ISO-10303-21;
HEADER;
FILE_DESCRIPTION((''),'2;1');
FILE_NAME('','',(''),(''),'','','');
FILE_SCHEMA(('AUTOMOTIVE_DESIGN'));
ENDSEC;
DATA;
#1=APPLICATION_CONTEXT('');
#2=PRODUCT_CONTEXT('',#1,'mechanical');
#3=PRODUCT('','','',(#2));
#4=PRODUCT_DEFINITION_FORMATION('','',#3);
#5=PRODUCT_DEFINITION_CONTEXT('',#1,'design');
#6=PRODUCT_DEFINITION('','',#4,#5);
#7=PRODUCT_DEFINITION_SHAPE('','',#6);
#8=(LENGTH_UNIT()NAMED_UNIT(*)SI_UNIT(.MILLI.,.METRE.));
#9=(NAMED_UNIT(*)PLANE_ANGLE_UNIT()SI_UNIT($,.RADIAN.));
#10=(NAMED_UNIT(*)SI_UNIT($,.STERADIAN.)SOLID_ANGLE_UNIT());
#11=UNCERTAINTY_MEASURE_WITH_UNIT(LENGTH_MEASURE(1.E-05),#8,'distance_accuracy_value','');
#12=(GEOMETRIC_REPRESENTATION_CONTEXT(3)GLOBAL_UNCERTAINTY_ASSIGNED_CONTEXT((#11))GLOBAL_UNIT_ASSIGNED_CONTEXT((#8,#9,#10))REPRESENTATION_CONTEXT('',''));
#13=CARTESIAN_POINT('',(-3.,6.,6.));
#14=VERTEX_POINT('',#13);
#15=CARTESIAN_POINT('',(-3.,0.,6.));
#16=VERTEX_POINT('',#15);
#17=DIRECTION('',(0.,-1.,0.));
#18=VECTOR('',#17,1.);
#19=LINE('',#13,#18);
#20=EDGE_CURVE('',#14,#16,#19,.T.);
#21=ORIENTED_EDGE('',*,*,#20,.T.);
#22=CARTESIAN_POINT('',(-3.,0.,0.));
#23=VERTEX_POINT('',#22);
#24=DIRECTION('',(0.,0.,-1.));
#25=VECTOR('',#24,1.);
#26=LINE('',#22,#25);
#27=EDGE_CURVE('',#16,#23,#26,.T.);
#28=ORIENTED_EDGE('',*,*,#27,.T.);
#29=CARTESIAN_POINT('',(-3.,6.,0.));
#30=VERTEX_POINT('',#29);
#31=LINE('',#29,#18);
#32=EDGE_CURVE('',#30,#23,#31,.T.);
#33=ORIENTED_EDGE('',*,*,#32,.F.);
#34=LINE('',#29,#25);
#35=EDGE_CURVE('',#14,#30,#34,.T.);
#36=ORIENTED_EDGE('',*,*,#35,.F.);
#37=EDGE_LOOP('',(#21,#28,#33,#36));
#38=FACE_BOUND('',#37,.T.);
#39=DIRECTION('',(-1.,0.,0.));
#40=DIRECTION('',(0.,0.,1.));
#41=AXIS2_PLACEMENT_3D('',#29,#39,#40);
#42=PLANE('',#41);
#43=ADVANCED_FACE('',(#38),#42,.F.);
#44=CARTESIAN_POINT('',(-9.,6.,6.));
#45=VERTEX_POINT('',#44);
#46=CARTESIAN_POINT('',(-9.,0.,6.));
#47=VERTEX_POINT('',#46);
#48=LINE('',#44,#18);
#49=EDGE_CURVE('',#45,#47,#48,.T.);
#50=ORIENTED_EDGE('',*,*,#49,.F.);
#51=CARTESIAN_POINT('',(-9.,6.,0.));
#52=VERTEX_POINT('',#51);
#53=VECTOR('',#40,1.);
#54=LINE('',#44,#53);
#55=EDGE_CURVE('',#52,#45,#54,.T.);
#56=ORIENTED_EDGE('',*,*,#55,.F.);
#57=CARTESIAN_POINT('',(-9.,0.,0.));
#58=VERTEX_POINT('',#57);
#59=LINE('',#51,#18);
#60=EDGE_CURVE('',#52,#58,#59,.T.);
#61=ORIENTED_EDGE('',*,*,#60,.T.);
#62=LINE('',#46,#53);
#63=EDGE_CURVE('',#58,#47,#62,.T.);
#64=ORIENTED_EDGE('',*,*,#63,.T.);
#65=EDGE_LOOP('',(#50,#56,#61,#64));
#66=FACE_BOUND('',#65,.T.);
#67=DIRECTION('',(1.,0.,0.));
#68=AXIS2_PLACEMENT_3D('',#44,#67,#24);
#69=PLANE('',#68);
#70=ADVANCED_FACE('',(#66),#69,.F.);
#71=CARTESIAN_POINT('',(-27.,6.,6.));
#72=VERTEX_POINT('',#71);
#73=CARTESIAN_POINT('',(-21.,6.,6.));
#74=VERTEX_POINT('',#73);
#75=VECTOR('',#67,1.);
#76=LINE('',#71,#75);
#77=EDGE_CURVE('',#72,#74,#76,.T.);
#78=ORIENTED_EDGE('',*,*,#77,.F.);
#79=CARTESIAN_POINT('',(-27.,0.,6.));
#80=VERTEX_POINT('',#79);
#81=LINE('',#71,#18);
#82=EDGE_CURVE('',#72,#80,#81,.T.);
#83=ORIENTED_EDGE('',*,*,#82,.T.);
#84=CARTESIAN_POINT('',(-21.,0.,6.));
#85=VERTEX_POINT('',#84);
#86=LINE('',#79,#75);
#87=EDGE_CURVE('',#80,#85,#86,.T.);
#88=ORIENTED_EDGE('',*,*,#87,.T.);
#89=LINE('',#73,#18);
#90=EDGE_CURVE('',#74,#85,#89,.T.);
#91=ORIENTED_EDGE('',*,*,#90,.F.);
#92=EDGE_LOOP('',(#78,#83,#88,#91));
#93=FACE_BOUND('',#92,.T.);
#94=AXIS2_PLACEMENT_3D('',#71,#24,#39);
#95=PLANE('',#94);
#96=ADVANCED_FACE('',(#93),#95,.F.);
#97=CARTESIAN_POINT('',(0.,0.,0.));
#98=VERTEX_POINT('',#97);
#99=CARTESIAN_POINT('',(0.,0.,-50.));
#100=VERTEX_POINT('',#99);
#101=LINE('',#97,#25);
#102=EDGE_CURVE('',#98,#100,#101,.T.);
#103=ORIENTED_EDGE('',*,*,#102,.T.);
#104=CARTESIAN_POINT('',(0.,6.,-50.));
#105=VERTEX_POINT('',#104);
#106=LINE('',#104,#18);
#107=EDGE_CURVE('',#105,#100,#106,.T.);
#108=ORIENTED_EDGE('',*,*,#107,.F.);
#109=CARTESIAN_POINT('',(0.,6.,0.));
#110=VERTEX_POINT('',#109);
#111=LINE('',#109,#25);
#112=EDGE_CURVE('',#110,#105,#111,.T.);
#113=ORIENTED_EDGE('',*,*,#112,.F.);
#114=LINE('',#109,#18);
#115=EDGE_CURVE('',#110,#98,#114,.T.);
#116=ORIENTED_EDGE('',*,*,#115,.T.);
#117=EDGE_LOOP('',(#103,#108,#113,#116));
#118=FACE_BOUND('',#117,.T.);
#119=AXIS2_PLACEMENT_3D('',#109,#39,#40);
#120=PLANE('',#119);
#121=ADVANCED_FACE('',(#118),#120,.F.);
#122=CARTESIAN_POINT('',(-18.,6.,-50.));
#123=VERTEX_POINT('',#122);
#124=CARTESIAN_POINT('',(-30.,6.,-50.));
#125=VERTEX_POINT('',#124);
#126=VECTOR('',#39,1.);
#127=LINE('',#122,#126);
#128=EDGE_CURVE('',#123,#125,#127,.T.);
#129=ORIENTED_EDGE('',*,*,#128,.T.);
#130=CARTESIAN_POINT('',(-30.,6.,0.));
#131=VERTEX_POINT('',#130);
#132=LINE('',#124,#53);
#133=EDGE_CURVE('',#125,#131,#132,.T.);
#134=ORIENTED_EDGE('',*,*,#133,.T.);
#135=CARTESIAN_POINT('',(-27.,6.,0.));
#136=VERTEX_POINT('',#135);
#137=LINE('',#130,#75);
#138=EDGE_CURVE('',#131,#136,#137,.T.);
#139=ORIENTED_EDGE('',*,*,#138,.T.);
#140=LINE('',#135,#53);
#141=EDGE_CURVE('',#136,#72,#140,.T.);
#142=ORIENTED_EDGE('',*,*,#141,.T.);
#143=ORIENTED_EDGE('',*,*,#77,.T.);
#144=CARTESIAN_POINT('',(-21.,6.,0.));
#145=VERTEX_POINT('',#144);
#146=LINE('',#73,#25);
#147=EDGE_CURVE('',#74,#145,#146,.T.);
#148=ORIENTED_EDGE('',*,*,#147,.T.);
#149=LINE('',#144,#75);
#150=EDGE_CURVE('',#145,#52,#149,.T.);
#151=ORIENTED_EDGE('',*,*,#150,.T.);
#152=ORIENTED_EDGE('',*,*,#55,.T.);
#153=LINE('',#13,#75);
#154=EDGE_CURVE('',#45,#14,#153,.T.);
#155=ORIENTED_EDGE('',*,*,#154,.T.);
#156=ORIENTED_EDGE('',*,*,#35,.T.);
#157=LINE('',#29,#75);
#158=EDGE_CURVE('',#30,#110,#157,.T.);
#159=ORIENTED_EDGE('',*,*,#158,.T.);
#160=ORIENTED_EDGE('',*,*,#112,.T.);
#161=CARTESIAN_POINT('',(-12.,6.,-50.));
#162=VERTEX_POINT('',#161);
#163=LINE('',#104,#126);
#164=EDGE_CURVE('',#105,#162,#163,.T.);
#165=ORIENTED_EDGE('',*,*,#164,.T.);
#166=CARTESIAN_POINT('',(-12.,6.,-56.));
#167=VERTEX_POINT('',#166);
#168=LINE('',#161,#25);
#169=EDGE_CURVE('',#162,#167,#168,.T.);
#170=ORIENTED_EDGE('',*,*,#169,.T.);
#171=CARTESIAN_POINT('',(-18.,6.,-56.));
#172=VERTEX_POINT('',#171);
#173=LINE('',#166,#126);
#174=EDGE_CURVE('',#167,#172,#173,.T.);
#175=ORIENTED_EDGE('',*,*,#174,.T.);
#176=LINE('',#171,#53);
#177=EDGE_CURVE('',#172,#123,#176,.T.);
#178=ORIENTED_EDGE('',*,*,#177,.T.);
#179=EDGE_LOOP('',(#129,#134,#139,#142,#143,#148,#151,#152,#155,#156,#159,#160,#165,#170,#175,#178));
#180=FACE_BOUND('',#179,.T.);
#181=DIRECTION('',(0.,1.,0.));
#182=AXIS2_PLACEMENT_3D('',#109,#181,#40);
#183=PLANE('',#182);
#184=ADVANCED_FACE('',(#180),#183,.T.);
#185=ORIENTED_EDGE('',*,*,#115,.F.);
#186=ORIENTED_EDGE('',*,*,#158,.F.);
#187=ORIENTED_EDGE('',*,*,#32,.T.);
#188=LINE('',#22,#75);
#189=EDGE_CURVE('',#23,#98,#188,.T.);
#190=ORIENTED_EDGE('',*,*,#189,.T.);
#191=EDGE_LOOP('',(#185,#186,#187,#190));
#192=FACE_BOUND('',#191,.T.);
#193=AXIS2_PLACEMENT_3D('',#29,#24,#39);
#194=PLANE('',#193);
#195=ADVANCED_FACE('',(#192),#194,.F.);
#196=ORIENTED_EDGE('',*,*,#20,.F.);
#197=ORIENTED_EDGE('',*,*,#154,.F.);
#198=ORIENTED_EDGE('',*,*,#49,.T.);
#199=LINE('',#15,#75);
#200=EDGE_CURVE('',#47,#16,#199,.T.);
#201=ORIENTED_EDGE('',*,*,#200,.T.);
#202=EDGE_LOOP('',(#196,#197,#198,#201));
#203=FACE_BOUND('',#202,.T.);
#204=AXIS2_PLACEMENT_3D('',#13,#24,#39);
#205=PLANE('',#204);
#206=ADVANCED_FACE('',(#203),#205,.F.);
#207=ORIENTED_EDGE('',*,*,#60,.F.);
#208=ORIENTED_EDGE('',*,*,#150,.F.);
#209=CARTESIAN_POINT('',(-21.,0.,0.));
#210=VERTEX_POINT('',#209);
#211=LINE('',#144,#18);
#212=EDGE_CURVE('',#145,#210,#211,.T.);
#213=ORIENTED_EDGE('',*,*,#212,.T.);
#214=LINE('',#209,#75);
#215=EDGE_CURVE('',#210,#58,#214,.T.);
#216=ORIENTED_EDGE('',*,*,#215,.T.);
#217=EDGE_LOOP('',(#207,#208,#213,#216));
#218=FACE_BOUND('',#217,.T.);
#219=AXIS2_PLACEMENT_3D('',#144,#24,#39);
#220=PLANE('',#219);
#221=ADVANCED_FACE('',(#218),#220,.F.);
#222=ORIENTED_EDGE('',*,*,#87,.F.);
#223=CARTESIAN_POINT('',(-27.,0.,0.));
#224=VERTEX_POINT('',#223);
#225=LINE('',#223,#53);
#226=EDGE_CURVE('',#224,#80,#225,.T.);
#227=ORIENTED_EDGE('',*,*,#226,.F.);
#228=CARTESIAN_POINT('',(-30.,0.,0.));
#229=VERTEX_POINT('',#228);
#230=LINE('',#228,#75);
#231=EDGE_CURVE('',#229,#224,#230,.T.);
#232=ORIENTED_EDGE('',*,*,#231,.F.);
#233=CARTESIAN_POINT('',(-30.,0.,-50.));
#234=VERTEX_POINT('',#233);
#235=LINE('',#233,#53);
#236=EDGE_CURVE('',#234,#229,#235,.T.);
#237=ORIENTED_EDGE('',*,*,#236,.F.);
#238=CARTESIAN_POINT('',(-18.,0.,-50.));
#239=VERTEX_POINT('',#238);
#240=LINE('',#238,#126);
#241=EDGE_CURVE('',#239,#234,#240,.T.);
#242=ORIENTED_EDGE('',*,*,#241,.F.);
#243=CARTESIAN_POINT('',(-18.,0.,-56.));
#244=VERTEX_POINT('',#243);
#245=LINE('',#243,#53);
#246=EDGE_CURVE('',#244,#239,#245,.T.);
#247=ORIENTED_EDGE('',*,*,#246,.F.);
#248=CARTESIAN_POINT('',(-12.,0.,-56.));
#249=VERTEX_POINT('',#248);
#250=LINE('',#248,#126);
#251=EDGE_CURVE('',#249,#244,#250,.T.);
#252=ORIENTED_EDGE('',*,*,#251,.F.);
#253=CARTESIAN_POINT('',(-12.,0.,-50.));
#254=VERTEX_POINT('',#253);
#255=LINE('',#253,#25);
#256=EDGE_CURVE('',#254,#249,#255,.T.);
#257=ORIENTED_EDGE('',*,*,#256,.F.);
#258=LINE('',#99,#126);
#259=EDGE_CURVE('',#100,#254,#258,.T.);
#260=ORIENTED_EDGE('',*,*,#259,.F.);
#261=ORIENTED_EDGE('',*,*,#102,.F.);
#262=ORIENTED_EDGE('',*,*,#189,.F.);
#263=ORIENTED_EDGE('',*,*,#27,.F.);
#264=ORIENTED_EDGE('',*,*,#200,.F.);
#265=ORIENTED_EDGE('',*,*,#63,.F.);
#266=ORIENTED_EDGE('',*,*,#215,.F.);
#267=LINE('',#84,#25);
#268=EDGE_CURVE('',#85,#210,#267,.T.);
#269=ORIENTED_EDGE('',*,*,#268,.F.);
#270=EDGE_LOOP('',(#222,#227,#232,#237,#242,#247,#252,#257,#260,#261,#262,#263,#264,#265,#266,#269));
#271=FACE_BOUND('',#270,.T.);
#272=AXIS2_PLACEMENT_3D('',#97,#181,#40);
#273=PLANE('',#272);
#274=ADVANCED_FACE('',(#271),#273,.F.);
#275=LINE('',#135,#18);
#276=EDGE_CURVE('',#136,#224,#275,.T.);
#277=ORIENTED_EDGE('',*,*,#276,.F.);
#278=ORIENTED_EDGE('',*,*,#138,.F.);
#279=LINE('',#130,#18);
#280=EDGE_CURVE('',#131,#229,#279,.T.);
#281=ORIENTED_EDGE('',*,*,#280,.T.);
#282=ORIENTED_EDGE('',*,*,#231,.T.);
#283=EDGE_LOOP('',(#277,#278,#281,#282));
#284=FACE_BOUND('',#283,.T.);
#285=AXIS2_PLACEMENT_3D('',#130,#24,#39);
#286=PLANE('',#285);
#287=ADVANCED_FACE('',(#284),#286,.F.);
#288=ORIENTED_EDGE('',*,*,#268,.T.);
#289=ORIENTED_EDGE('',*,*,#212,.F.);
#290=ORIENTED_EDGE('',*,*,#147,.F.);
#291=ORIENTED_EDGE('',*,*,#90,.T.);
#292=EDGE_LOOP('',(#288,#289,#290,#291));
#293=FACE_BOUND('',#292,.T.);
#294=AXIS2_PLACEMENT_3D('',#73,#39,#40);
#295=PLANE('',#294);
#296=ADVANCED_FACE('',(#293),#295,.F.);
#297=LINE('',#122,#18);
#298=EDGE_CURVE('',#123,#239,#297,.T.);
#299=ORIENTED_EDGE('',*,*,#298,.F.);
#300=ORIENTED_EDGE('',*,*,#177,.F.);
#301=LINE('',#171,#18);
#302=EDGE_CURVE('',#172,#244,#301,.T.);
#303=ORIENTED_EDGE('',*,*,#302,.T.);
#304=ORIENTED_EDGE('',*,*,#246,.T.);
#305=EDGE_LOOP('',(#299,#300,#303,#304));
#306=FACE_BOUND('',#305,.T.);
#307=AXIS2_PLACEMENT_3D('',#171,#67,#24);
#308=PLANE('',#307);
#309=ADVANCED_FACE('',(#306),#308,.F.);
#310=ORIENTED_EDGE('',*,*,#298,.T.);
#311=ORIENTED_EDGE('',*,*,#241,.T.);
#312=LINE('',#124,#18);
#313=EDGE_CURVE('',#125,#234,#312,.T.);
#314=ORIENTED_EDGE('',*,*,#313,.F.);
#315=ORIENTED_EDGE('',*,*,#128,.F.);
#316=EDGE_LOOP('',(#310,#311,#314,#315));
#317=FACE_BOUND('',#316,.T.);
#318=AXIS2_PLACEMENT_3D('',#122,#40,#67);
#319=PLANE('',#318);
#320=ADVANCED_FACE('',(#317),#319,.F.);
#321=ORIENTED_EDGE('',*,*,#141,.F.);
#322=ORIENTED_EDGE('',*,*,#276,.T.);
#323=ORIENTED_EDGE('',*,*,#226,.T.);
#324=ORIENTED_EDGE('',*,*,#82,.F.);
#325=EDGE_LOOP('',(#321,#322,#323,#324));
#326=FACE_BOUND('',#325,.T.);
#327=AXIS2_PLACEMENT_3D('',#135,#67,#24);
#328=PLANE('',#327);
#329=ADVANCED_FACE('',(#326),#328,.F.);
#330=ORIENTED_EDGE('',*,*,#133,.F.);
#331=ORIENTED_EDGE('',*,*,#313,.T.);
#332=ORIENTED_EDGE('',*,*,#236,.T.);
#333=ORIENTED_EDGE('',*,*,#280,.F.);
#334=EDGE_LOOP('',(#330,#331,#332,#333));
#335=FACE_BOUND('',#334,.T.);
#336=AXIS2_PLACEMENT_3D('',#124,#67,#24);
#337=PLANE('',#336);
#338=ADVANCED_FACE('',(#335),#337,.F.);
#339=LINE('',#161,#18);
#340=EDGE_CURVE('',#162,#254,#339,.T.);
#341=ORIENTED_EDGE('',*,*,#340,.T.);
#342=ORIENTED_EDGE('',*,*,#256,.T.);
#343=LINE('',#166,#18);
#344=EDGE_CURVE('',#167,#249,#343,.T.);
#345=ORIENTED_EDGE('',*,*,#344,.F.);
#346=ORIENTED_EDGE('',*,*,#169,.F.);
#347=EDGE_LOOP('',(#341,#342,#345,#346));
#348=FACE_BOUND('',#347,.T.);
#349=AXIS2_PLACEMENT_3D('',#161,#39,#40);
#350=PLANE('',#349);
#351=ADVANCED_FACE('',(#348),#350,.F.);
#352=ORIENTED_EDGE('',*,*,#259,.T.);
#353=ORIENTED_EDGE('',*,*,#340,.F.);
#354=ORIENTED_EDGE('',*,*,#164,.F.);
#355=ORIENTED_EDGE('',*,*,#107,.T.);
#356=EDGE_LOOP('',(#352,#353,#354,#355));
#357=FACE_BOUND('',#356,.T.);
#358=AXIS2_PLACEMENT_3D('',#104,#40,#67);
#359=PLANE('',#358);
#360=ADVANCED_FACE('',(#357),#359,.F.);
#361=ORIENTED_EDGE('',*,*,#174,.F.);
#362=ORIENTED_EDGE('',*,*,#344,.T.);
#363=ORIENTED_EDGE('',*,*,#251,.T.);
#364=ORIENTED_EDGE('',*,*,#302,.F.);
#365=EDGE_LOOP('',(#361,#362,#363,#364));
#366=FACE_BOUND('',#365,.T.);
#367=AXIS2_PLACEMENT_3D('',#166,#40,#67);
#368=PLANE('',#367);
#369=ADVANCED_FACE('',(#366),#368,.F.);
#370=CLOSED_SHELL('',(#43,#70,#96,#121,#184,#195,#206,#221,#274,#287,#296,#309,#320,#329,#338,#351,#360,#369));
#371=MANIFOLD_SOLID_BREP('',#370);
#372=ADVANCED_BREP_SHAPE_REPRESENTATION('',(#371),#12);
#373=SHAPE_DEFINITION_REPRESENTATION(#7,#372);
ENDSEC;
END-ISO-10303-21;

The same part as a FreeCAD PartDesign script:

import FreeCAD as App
import Part
import Sketcher


def add_polygon(sketch, points):
    """Adds a closed chain of lines whose ends are joined by coincident constraints."""
    first, n = sketch.GeometryCount, len(points)
    for a, b in zip(points, points[1:] + points[:1]):
        sketch.addGeometry(Part.LineSegment(App.Vector(*a, 0), App.Vector(*b, 0)), False)
    for i in range(n):
        sketch.addConstraint(Sketcher.Constraint("Coincident", first + i, 2, first + (i + 1) % n, 1))

doc = App.newDocument("Part")
params = doc.addObject("Spreadsheet::Sheet", "Params")
for row, (alias, value) in enumerate([
    ("sketch1_width", "12 mm"),
    ("sketch1_width2", "6 mm"),
    ("sketch1_height", "50 mm"),
    ("pad1_length", "6 mm"),
], start=1):
    params.set(f"A{row}", alias)
    params.set(f"B{row}", "=" + value)
    params.setAlias(f"B{row}", alias)

body = doc.addObject("PartDesign::Body", "Body")

# Sketch on XZ plane
sketch1 = body.newObject("Sketcher::SketchObject", "Sketch")
sketch1.AttachmentSupport = (doc.getObject("XZ_Plane"), [""])
sketch1.MapMode = "FlatFace"
add_polygon(sketch1, [(0, 0), (0, -50), (-12, -50), (-12, -56), (-18, -56), (-18, -50), (-30, -50), (-30, 0), (-27, 0), (-27, 6), (-21, 6), (-21, 0), (-9, 0), (-9, 6), (-3, 6), (-3, 0)])  # lines 0-15
sketch1.addConstraint(Sketcher.Constraint("Vertical", 0))
sketch1.addConstraint(Sketcher.Constraint("Horizontal", 1))
sketch1.addConstraint(Sketcher.Constraint("Vertical", 2))
sketch1.addConstraint(Sketcher.Constraint("Horizontal", 3))
sketch1.addConstraint(Sketcher.Constraint("Vertical", 4))
sketch1.addConstraint(Sketcher.Constraint("Horizontal", 5))
sketch1.addConstraint(Sketcher.Constraint("Vertical", 6))
sketch1.addConstraint(Sketcher.Constraint("Horizontal", 7))
sketch1.addConstraint(Sketcher.Constraint("Vertical", 8))
sketch1.addConstraint(Sketcher.Constraint("Horizontal", 9))
sketch1.addConstraint(Sketcher.Constraint("Vertical", 10))
sketch1.addConstraint(Sketcher.Constraint("Horizontal", 11))
sketch1.addConstraint(Sketcher.Constraint("Vertical", 12))
sketch1.addConstraint(Sketcher.Constraint("Horizontal", 13))
sketch1.addConstraint(Sketcher.Constraint("Vertical", 14))
sketch1.addConstraint(Sketcher.Constraint("Horizontal", 15))
sketch1.addConstraint(Sketcher.Constraint("Coincident", 15, 2, -1, 1))
sketch1.addConstraint(Sketcher.Constraint("PointOnObject", 6, 2, -1))
sketch1.addConstraint(Sketcher.Constraint("PointOnObject", 10, 2, -1))
sketch1.addConstraint(Sketcher.Constraint("Horizontal", 1, 2, 4, 2))
sketch1.addConstraint(Sketcher.Constraint("Horizontal", 9, 2, 12, 2))
sketch1.addConstraint(Sketcher.Constraint("Equal", 1, 5))
sketch1.addConstraint(Sketcher.Constraint("Equal", 3, 9))
sketch1.addConstraint(Sketcher.Constraint("Equal", 5, 11))
sketch1.addConstraint(Sketcher.Constraint("Equal", 9, 13))
sketch1.addConstraint(Sketcher.Constraint("Equal", 7, 15))
sketch1.addConstraint(Sketcher.Constraint("Equal", 13, 2))
sketch1.addConstraint(Sketcher.Constraint("Equal", 4, 8))
sketch1.addConstraint(Sketcher.Constraint("DistanceX", 1, 2, 1, 1, 12.0))
sketch1.addConstraint(Sketcher.Constraint("DistanceX", 3, 2, 3, 1, 6.0))
sketch1.addConstraint(Sketcher.Constraint("DistanceY", 0, 2, 0, 1, 50.0))
sketch1.setExpression("Constraints[44]", "Params.sketch1_width")
sketch1.setExpression("Constraints[45]", "Params.sketch1_width2")
sketch1.setExpression("Constraints[46]", "Params.sketch1_height")
pad1 = body.newObject("PartDesign::Pad", "Pad")
pad1.Profile = sketch1
pad1.setExpression("Length", "Params.pad1_length")
pad1.Reversed = True

doc.recompute()
